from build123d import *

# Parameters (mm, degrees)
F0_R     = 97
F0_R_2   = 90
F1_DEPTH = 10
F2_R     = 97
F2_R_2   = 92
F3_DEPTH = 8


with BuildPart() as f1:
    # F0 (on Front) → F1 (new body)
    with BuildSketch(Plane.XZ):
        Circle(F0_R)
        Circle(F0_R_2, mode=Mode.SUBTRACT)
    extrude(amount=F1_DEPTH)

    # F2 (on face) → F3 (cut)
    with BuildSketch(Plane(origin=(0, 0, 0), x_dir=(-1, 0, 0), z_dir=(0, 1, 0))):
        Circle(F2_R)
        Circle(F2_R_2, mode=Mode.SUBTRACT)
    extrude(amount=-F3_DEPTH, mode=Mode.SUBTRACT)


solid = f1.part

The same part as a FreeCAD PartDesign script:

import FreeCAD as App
import Part
import Sketcher
Q = App.Units.Quantity

doc = App.newDocument("Part")
body = doc.addObject("PartDesign::Body", "Body")

sketch1 = body.newObject("Sketcher::SketchObject", "Sketch")
sketch1.AttachmentSupport = (doc.getObject("XZ_Plane"), [""])
sketch1.MapMode = "FlatFace"
sketch1.addGeometry(Part.Circle(App.Vector(0, 0, 0), App.Vector(0, 0, 1), 97), False)
sketch1.addGeometry(Part.Circle(App.Vector(0, 0, 0), App.Vector(0, 0, 1), 90), False)
sketch1.addConstraint(Sketcher.Constraint("Coincident", 0, 3, -1, 1))
sketch1.addConstraint(Sketcher.Constraint("Coincident", 1, 3, -1, 1))
sketch1.addConstraint(Sketcher.Constraint("Diameter", 0, Q("194 mm")))
sketch1.addConstraint(Sketcher.Constraint("Diameter", 1, Q("180 mm")))
pad1 = body.newObject("PartDesign::Pad", "Pad")
pad1.Profile = sketch1
pad1.Length = 10

sketch2 = body.newObject("Sketcher::SketchObject", "Sketch001")
sketch2.AttachmentSupport = (doc.getObject("XZ_Plane"), [""])
sketch2.MapMode = "FlatFace"
sketch2.addGeometry(Part.Circle(App.Vector(0, 0, 0), App.Vector(0, 0, 1), 97), False)
sketch2.addGeometry(Part.Circle(App.Vector(0, 0, 0), App.Vector(0, 0, 1), 92), False)
sketch2.addConstraint(Sketcher.Constraint("Coincident", 0, 3, -1, 1))
sketch2.addConstraint(Sketcher.Constraint("Coincident", 1, 3, -1, 1))
sketch2.addConstraint(Sketcher.Constraint("Diameter", 0, Q("194 mm")))
sketch2.addConstraint(Sketcher.Constraint("Diameter", 1, Q("184 mm")))
pocket1 = body.newObject("PartDesign::Pocket", "Pocket")
pocket1.Profile = sketch2
pocket1.Length = 8
pocket1.Reversed = True

doc.recompute()
